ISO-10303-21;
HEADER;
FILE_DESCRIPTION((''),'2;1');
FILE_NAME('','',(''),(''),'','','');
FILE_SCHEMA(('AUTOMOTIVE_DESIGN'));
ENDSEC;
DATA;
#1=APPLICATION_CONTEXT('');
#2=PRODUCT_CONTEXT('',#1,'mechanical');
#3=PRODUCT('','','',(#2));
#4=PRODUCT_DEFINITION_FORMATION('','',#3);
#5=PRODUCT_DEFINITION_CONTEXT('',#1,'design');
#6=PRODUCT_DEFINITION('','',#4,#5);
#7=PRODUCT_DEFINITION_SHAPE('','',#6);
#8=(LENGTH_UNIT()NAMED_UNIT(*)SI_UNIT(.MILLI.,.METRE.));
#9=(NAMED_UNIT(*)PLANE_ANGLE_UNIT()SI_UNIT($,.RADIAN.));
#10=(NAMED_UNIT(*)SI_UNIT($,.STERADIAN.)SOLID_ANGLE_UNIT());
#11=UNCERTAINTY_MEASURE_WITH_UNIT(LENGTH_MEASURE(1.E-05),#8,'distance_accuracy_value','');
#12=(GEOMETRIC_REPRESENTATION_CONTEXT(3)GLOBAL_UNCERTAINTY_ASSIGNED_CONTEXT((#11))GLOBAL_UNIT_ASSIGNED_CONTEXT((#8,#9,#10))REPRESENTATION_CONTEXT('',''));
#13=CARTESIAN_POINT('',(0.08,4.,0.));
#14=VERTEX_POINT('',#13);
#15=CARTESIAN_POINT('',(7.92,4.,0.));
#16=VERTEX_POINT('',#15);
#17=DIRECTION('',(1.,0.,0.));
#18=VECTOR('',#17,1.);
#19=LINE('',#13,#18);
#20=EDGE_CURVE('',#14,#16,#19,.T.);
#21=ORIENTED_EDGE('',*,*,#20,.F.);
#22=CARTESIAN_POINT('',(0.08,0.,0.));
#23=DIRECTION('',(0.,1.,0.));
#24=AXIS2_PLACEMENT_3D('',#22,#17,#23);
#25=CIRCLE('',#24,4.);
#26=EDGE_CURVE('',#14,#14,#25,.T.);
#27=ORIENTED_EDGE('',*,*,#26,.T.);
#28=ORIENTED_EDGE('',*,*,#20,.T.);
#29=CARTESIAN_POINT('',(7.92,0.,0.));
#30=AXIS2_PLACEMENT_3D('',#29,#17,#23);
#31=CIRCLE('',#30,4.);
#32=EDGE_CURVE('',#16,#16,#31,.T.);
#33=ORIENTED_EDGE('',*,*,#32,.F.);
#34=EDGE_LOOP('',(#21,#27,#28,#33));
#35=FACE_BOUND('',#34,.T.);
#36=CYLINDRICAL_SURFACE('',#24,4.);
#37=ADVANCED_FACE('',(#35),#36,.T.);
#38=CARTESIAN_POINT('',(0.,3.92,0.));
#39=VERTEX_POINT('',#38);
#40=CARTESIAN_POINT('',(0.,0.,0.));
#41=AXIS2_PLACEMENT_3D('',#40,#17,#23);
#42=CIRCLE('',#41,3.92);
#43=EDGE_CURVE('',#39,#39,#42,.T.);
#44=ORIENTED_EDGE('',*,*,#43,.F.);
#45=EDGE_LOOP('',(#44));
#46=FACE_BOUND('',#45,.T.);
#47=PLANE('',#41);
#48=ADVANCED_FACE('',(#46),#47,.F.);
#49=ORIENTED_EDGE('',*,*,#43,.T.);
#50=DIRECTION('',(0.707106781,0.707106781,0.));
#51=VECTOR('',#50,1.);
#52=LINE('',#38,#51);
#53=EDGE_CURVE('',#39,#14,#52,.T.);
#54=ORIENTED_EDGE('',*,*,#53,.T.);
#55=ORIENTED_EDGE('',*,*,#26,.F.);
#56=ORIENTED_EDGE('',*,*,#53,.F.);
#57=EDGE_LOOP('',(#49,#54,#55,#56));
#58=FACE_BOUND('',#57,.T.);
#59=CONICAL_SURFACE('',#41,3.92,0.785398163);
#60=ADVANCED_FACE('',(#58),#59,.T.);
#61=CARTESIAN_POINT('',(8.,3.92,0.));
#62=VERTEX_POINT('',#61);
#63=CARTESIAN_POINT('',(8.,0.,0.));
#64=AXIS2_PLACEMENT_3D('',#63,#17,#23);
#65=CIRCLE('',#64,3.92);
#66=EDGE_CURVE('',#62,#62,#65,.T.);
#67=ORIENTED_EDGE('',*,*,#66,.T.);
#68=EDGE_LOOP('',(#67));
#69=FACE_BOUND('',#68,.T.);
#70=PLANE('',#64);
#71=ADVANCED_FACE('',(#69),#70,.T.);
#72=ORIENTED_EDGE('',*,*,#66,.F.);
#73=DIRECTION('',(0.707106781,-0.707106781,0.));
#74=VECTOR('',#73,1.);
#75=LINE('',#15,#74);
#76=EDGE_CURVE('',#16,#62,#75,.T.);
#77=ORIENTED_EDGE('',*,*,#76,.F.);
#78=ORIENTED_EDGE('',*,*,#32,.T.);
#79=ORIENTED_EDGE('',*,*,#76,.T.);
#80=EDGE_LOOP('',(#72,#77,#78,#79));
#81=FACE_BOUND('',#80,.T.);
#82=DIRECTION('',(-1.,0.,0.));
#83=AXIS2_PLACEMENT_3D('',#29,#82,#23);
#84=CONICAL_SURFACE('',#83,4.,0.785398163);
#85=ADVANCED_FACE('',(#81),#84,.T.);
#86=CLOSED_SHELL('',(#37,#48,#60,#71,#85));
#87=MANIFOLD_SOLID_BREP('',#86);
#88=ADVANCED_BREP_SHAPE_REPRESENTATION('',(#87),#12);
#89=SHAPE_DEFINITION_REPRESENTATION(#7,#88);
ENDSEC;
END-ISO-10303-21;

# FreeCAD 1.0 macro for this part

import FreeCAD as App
import Part
import Sketcher


def add_polygon(sketch, points):
    """Adds a closed chain of lines whose ends are joined by coincident constraints."""
    first, n = sketch.GeometryCount, len(points)
    for a, b in zip(points, points[1:] + points[:1]):
        sketch.addGeometry(Part.LineSegment(App.Vector(*a, 0), App.Vector(*b, 0)), False)
    for i in range(n):
        sketch.addConstraint(Sketcher.Constraint("Coincident", first + i, 2, first + (i + 1) % n, 1))

doc = App.newDocument("Part")
params = doc.addObject("Spreadsheet::Sheet", "Params")
for row, (alias, value) in enumerate([
    ("sketch1_width", "8 mm"),
    ("sketch1_width2", "7.84 mm"),
    ("revolution_angle", "360 deg"),
], start=1):
    params.set(f"A{row}", alias)
    params.set(f"B{row}", "=" + value)
    params.setAlias(f"B{row}", alias)

body = doc.addObject("PartDesign::Body", "Body")

sketch1 = body.newObject("Sketcher::SketchObject", "Sketch")
sketch1.AttachmentSupport = (doc.getObject("XY_Plane"), [""])
sketch1.MapMode = "FlatFace"
add_polygon(sketch1, [(0, 0), (8, 0), (8, 3.92), (7.92, 4), (0.08, 4), (0, 3.92)])
sketch1.addConstraint([
    Sketcher.Constraint("Horizontal", 0),
    Sketcher.Constraint("Vertical", 1),
    Sketcher.Constraint("Horizontal", 3),
    Sketcher.Constraint("Vertical", 5),
    Sketcher.Constraint("Coincident", 5, 2, -1, 1),
    Sketcher.Constraint("Perpendicular", 2, 4),
    Sketcher.Constraint("Horizontal", 1, 2, 4, 2),
    Sketcher.Constraint("Equal", 2, 4),
    Sketcher.Constraint("DistanceX", 0, 1, 0, 2, 8.0),
    Sketcher.Constraint("DistanceY", -1, 1, 2, 2, 4.0),
    Sketcher.Constraint("DistanceX", 3, 2, 3, 1, 7.84),
])
sketch1.setExpression("Constraints[14]", "Params.sketch1_width")
sketch1.setExpression("Constraints[16]", "Params.sketch1_width2")
revolution = body.newObject("PartDesign::Revolution", "Revolution")
revolution.Profile = sketch1
revolution.ReferenceAxis = (sketch1, ["H_Axis"])
revolution.setExpression("Angle", "Params.revolution_angle")

doc.recompute()
